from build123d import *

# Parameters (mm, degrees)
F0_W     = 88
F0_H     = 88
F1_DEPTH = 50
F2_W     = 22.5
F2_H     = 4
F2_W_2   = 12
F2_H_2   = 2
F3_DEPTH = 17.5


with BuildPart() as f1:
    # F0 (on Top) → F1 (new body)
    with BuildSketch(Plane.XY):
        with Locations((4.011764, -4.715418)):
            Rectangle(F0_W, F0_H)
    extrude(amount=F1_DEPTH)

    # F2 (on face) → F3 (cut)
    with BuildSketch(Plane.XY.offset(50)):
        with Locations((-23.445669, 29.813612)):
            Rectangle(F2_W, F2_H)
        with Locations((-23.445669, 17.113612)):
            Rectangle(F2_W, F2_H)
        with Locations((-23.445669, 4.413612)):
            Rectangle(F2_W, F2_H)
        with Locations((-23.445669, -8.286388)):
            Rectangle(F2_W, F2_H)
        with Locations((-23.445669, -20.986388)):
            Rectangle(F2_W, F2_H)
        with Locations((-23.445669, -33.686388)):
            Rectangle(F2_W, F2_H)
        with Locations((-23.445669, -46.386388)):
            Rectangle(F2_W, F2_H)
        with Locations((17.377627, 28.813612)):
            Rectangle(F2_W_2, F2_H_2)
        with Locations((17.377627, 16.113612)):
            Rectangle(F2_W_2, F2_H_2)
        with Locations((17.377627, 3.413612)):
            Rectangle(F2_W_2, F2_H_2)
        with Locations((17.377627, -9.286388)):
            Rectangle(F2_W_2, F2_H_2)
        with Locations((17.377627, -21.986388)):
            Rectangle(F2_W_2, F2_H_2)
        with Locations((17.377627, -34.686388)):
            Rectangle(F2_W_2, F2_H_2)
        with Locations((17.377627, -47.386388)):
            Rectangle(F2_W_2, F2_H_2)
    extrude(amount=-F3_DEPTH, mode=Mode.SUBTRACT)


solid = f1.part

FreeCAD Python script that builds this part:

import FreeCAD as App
import Part
import Sketcher

V = App.Vector
Q = App.Units.Quantity

doc = App.newDocument("Part")
body = doc.addObject("PartDesign::Body", "Body")

# Sketch on XY plane
sketch1 = body.newObject("Sketcher::SketchObject", "Sketch")
sketch1.AttachmentSupport = (doc.getObject("XY_Plane"), [""])
sketch1.MapMode = "FlatFace"
sketch1.addGeometry(Part.LineSegment(V(-40, 39, 0), V(-40, -49, 0)), False)
sketch1.addGeometry(Part.LineSegment(V(-40, -49, 0), V(48, -49, 0)), False)
sketch1.addGeometry(Part.LineSegment(V(48, -49, 0), V(48, 39, 0)), False)
sketch1.addGeometry(Part.LineSegment(V(48, 39, 0), V(-40, 39, 0)), False)
sketch1.addConstraint(Sketcher.Constraint("Coincident", 0, 2, 1, 1))
sketch1.addConstraint(Sketcher.Constraint("Coincident", 1, 2, 2, 1))
sketch1.addConstraint(Sketcher.Constraint("Coincident", 2, 2, 3, 1))
sketch1.addConstraint(Sketcher.Constraint("Coincident", 3, 2, 0, 1))
sketch1.addConstraint(Sketcher.Constraint("Vertical", 0))
sketch1.addConstraint(Sketcher.Constraint("Horizontal", 1))
sketch1.addConstraint(Sketcher.Constraint("Vertical", 2))
sketch1.addConstraint(Sketcher.Constraint("Horizontal", 3))
sketch1.addConstraint(Sketcher.Constraint("Equal", 3, 0))
sketch1.addConstraint(Sketcher.Constraint("DistanceX", 1, 1, 1, 2, Q("88 mm")))
sketch1.addConstraint(Sketcher.Constraint("DistanceX", 0, 2, -1, 1, Q("39.988236 mm")))
sketch1.addConstraint(Sketcher.Constraint("DistanceY", 0, 2, -1, 1, Q("48.715418 mm")))
pad1 = body.newObject("PartDesign::Pad", "Pad")
pad1.Profile = sketch1
pad1.Length = 50

# Sketch on XY plane
sketch2 = body.newObject("Sketcher::SketchObject", "Sketch001")
sketch2.AttachmentSupport = (doc.getObject("XY_Plane"), [""])
sketch2.MapMode = "FlatFace"
sketch2.AttachmentOffset = App.Placement(V(0, 0, 50), App.Rotation())
sketch2.addGeometry(Part.LineSegment(V(-34.7, 31.8, 0), V(-34.7, 27.8, 0)), False)
sketch2.addGeometry(Part.LineSegment(V(-34.7, 27.8, 0), V(-12.2, 27.8, 0)), False)
sketch2.addGeometry(Part.LineSegment(V(-12.2, 27.8, 0), V(-12.2, 31.8, 0)), False)
sketch2.addGeometry(Part.LineSegment(V(-12.2, 31.8, 0), V(-34.7, 31.8, 0)), False)
sketch2.addGeometry(Part.LineSegment(V(-34.7, 19.1, 0), V(-34.7, 15.1, 0)), False)
sketch2.addGeometry(Part.LineSegment(V(-34.7, 15.1, 0), V(-12.2, 15.1, 0)), False)
sketch2.addGeometry(Part.LineSegment(V(-12.2, 15.1, 0), V(-12.2, 19.1, 0)), False)
sketch2.addGeometry(Part.LineSegment(V(-12.2, 19.1, 0), V(-34.7, 19.1, 0)), False)
sketch2.addGeometry(Part.LineSegment(V(-34.7, 6.4, 0), V(-34.7, 2.4, 0)), False)
sketch2.addGeometry(Part.LineSegment(V(-34.7, 2.4, 0), V(-12.2, 2.4, 0)), False)
sketch2.addGeometry(Part.LineSegment(V(-12.2, 2.4, 0), V(-12.2, 6.4, 0)), False)
sketch2.addGeometry(Part.LineSegment(V(-12.2, 6.4, 0), V(-34.7, 6.4, 0)), False)
sketch2.addGeometry(Part.LineSegment(V(-34.7, -6.3, 0), V(-34.7, -10.3, 0)), False)
sketch2.addGeometry(Part.LineSegment(V(-34.7, -10.3, 0), V(-12.2, -10.3, 0)), False)
sketch2.addGeometry(Part.LineSegment(V(-12.2, -10.3, 0), V(-12.2, -6.3, 0)), False)
sketch2.addGeometry(Part.LineSegment(V(-12.2, -6.3, 0), V(-34.7, -6.3, 0)), False)
sketch2.addGeometry(Part.LineSegment(V(-34.7, -19, 0), V(-34.7, -23, 0)), False)
sketch2.addGeometry(Part.LineSegment(V(-34.7, -23, 0), V(-12.2, -23, 0)), False)
sketch2.addGeometry(Part.LineSegment(V(-12.2, -23, 0), V(-12.2, -19, 0)), False)
sketch2.addGeometry(Part.LineSegment(V(-12.2, -19, 0), V(-34.7, -19, 0)), False)
sketch2.addGeometry(Part.LineSegment(V(-34.7, -31.7, 0), V(-34.7, -35.7, 0)), False)
sketch2.addGeometry(Part.LineSegment(V(-34.7, -35.7, 0), V(-12.2, -35.7, 0)), False)
sketch2.addGeometry(Part.LineSegment(V(-12.2, -35.7, 0), V(-12.2, -31.7, 0)), False)
sketch2.addGeometry(Part.LineSegment(V(-12.2, -31.7, 0), V(-34.7, -31.7, 0)), False)
sketch2.addGeometry(Part.LineSegment(V(-34.7, -44.4, 0), V(-34.7, -48.4, 0)), False)
sketch2.addGeometry(Part.LineSegment(V(-34.7, -48.4, 0), V(-12.2, -48.4, 0)), False)
sketch2.addGeometry(Part.LineSegment(V(-12.2, -48.4, 0), V(-12.2, -44.4, 0)), False)
sketch2.addGeometry(Part.LineSegment(V(-12.2, -44.4, 0), V(-34.7, -44.4, 0)), False)
sketch2.addGeometry(Part.LineSegment(V(11.4, 29.8, 0), V(11.4, 27.8, 0)), False)
sketch2.addGeometry(Part.LineSegment(V(11.4, 27.8, 0), V(23.4, 27.8, 0)), False)
sketch2.addGeometry(Part.LineSegment(V(23.4, 27.8, 0), V(23.4, 29.8, 0)), False)
sketch2.addGeometry(Part.LineSegment(V(23.4, 29.8, 0), V(11.4, 29.8, 0)), False)
sketch2.addGeometry(Part.LineSegment(V(11.4, 17.1, 0), V(11.4, 15.1, 0)), False)
sketch2.addGeometry(Part.LineSegment(V(11.4, 15.1, 0), V(23.4, 15.1, 0)), False)
sketch2.addGeometry(Part.LineSegment(V(23.4, 15.1, 0), V(23.4, 17.1, 0)), False)
sketch2.addGeometry(Part.LineSegment(V(23.4, 17.1, 0), V(11.4, 17.1, 0)), False)
sketch2.addGeometry(Part.LineSegment(V(11.4, 4.4, 0), V(11.4, 2.4, 0)), False)
sketch2.addGeometry(Part.LineSegment(V(11.4, 2.4, 0), V(23.4, 2.4, 0)), False)
sketch2.addGeometry(Part.LineSegment(V(23.4, 2.4, 0), V(23.4, 4.4, 0)), False)
sketch2.addGeometry(Part.LineSegment(V(23.4, 4.4, 0), V(11.4, 4.4, 0)), False)
sketch2.addGeometry(Part.LineSegment(V(11.4, -8.3, 0), V(11.4, -10.3, 0)), False)
sketch2.addGeometry(Part.LineSegment(V(11.4, -10.3, 0), V(23.4, -10.3, 0)), False)
sketch2.addGeometry(Part.LineSegment(V(23.4, -10.3, 0), V(23.4, -8.3, 0)), False)
sketch2.addGeometry(Part.LineSegment(V(23.4, -8.3, 0), V(11.4, -8.3, 0)), False)
sketch2.addGeometry(Part.LineSegment(V(11.4, -21, 0), V(11.4, -23, 0)), False)
sketch2.addGeometry(Part.LineSegment(V(11.4, -23, 0), V(23.4, -23, 0)), False)
sketch2.addGeometry(Part.LineSegment(V(23.4, -23, 0), V(23.4, -21, 0)), False)
sketch2.addGeometry(Part.LineSegment(V(23.4, -21, 0), V(11.4, -21, 0)), False)
sketch2.addGeometry(Part.LineSegment(V(11.4, -33.7, 0), V(11.4, -35.7, 0)), False)
sketch2.addGeometry(Part.LineSegment(V(11.4, -35.7, 0), V(23.4, -35.7, 0)), False)
sketch2.addGeometry(Part.LineSegment(V(23.4, -35.7, 0), V(23.4, -33.7, 0)), False)
sketch2.addGeometry(Part.LineSegment(V(23.4, -33.7, 0), V(11.4, -33.7, 0)), False)
sketch2.addGeometry(Part.LineSegment(V(11.4, -46.4, 0), V(11.4, -48.4, 0)), False)
sketch2.addGeometry(Part.LineSegment(V(11.4, -48.4, 0), V(23.4, -48.4, 0)), False)
sketch2.addGeometry(Part.LineSegment(V(23.4, -48.4, 0), V(23.4, -46.4, 0)), False)
sketch2.addGeometry(Part.LineSegment(V(23.4, -46.4, 0), V(11.4, -46.4, 0)), False)
sketch2.addConstraint(Sketcher.Constraint("Coincident", 0, 2, 1, 1))
sketch2.addConstraint(Sketcher.Constraint("Coincident", 1, 2, 2, 1))
sketch2.addConstraint(Sketcher.Constraint("Coincident", 2, 2, 3, 1))
sketch2.addConstraint(Sketcher.Constraint("Coincident", 3, 2, 0, 1))
sketch2.addConstraint(Sketcher.Constraint("Coincident", 4, 2, 5, 1))
sketch2.addConstraint(Sketcher.Constraint("Coincident", 5, 2, 6, 1))
sketch2.addConstraint(Sketcher.Constraint("Coincident", 6, 2, 7, 1))
sketch2.addConstraint(Sketcher.Constraint("Coincident", 7, 2, 4, 1))
sketch2.addConstraint(Sketcher.Constraint("Coincident", 8, 2, 9, 1))
sketch2.addConstraint(Sketcher.Constraint("Coincident", 9, 2, 10, 1))
sketch2.addConstraint(Sketcher.Constraint("Coincident", 10, 2, 11, 1))
sketch2.addConstraint(Sketcher.Constraint("Coincident", 11, 2, 8, 1))
sketch2.addConstraint(Sketcher.Constraint("Coincident", 12, 2, 13, 1))
sketch2.addConstraint(Sketcher.Constraint("Coincident", 13, 2, 14, 1))
sketch2.addConstraint(Sketcher.Constraint("Coincident", 14, 2, 15, 1))
sketch2.addConstraint(Sketcher.Constraint("Coincident", 15, 2, 12, 1))
sketch2.addConstraint(Sketcher.Constraint("Coincident", 16, 2, 17, 1))
sketch2.addConstraint(Sketcher.Constraint("Coincident", 17, 2, 18, 1))
sketch2.addConstraint(Sketcher.Constraint("Coincident", 18, 2, 19, 1))
sketch2.addConstraint(Sketcher.Constraint("Coincident", 19, 2, 16, 1))
sketch2.addConstraint(Sketcher.Constraint("Coincident", 20, 2, 21, 1))
sketch2.addConstraint(Sketcher.Constraint("Coincident", 21, 2, 22, 1))
sketch2.addConstraint(Sketcher.Constraint("Coincident", 22, 2, 23, 1))
sketch2.addConstraint(Sketcher.Constraint("Coincident", 23, 2, 20, 1))
sketch2.addConstraint(Sketcher.Constraint("Coincident", 24, 2, 25, 1))
sketch2.addConstraint(Sketcher.Constraint("Coincident", 25, 2, 26, 1))
sketch2.addConstraint(Sketcher.Constraint("Coincident", 26, 2, 27, 1))
sketch2.addConstraint(Sketcher.Constraint("Coincident", 27, 2, 24, 1))
sketch2.addConstraint(Sketcher.Constraint("Coincident", 28, 2, 29, 1))
sketch2.addConstraint(Sketcher.Constraint("Coincident", 29, 2, 30, 1))
sketch2.addConstraint(Sketcher.Constraint("Coincident", 30, 2, 31, 1))
sketch2.addConstraint(Sketcher.Constraint("Coincident", 31, 2, 28, 1))
sketch2.addConstraint(Sketcher.Constraint("Coincident", 32, 2, 33, 1))
sketch2.addConstraint(Sketcher.Constraint("Coincident", 33, 2, 34, 1))
sketch2.addConstraint(Sketcher.Constraint("Coincident", 34, 2, 35, 1))
sketch2.addConstraint(Sketcher.Constraint("Coincident", 35, 2, 32, 1))
sketch2.addConstraint(Sketcher.Constraint("Coincident", 36, 2, 37, 1))
sketch2.addConstraint(Sketcher.Constraint("Coincident", 37, 2, 38, 1))
sketch2.addConstraint(Sketcher.Constraint("Coincident", 38, 2, 39, 1))
sketch2.addConstraint(Sketcher.Constraint("Coincident", 39, 2, 36, 1))
sketch2.addConstraint(Sketcher.Constraint("Coincident", 40, 2, 41, 1))
sketch2.addConstraint(Sketcher.Constraint("Coincident", 41, 2, 42, 1))
sketch2.addConstraint(Sketcher.Constraint("Coincident", 42, 2, 43, 1))
sketch2.addConstraint(Sketcher.Constraint("Coincident", 43, 2, 40, 1))
sketch2.addConstraint(Sketcher.Constraint("Coincident", 44, 2, 45, 1))
sketch2.addConstraint(Sketcher.Constraint("Coincident", 45, 2, 46, 1))
sketch2.addConstraint(Sketcher.Constraint("Coincident", 46, 2, 47, 1))
sketch2.addConstraint(Sketcher.Constraint("Coincident", 47, 2, 44, 1))
sketch2.addConstraint(Sketcher.Constraint("Coincident", 48, 2, 49, 1))
sketch2.addConstraint(Sketcher.Constraint("Coincident", 49, 2, 50, 1))
sketch2.addConstraint(Sketcher.Constraint("Coincident", 50, 2, 51, 1))
sketch2.addConstraint(Sketcher.Constraint("Coincident", 51, 2, 48, 1))
sketch2.addConstraint(Sketcher.Constraint("Coincident", 52, 2, 53, 1))
sketch2.addConstraint(Sketcher.Constraint("Coincident", 53, 2, 54, 1))
sketch2.addConstraint(Sketcher.Constraint("Coincident", 54, 2, 55, 1))
sketch2.addConstraint(Sketcher.Constraint("Coincident", 55, 2, 52, 1))
sketch2.addConstraint(Sketcher.Constraint("Vertical", 0))
sketch2.addConstraint(Sketcher.Constraint("Horizontal", 1))
sketch2.addConstraint(Sketcher.Constraint("Vertical", 2))
sketch2.addConstraint(Sketcher.Constraint("Horizontal", 3))
sketch2.addConstraint(Sketcher.Constraint("Vertical", 4))
sketch2.addConstraint(Sketcher.Constraint("Horizontal", 5))
sketch2.addConstraint(Sketcher.Constraint("Vertical", 6))
sketch2.addConstraint(Sketcher.Constraint("Horizontal", 7))
sketch2.addConstraint(Sketcher.Constraint("Vertical", 8))
sketch2.addConstraint(Sketcher.Constraint("Horizontal", 9))
sketch2.addConstraint(Sketcher.Constraint("Vertical", 10))
sketch2.addConstraint(Sketcher.Constraint("Horizontal", 11))
sketch2.addConstraint(Sketcher.Constraint("Vertical", 12))
sketch2.addConstraint(Sketcher.Constraint("Horizontal", 13))
sketch2.addConstraint(Sketcher.Constraint("Vertical", 14))
sketch2.addConstraint(Sketcher.Constraint("Horizontal", 15))
sketch2.addConstraint(Sketcher.Constraint("Vertical", 16))
sketch2.addConstraint(Sketcher.Constraint("Horizontal", 17))
sketch2.addConstraint(Sketcher.Constraint("Vertical", 18))
sketch2.addConstraint(Sketcher.Constraint("Horizontal", 19))
sketch2.addConstraint(Sketcher.Constraint("Vertical", 20))
sketch2.addConstraint(Sketcher.Constraint("Horizontal", 21))
sketch2.addConstraint(Sketcher.Constraint("Vertical", 22))
sketch2.addConstraint(Sketcher.Constraint("Horizontal", 23))
sketch2.addConstraint(Sketcher.Constraint("Vertical", 24))
sketch2.addConstraint(Sketcher.Constraint("Horizontal", 25))
sketch2.addConstraint(Sketcher.Constraint("Vertical", 26))
sketch2.addConstraint(Sketcher.Constraint("Horizontal", 27))
sketch2.addConstraint(Sketcher.Constraint("Vertical", 28))
sketch2.addConstraint(Sketcher.Constraint("Horizontal", 29))
sketch2.addConstraint(Sketcher.Constraint("Vertical", 30))
sketch2.addConstraint(Sketcher.Constraint("Horizontal", 31))
sketch2.addConstraint(Sketcher.Constraint("Vertical", 32))
sketch2.addConstraint(Sketcher.Constraint("Horizontal", 33))
sketch2.addConstraint(Sketcher.Constraint("Vertical", 34))
sketch2.addConstraint(Sketcher.Constraint("Horizontal", 35))
sketch2.addConstraint(Sketcher.Constraint("Vertical", 36))
sketch2.addConstraint(Sketcher.Constraint("Horizontal", 37))
sketch2.addConstraint(Sketcher.Constraint("Vertical", 38))
sketch2.addConstraint(Sketcher.Constraint("Horizontal", 39))
sketch2.addConstraint(Sketcher.Constraint("Vertical", 40))
sketch2.addConstraint(Sketcher.Constraint("Horizontal", 41))
sketch2.addConstraint(Sketcher.Constraint("Vertical", 42))
sketch2.addConstraint(Sketcher.Constraint("Horizontal", 43))
sketch2.addConstraint(Sketcher.Constraint("Vertical", 44))
sketch2.addConstraint(Sketcher.Constraint("Horizontal", 45))
sketch2.addConstraint(Sketcher.Constraint("Vertical", 46))
sketch2.addConstraint(Sketcher.Constraint("Horizontal", 47))
sketch2.addConstraint(Sketcher.Constraint("Vertical", 48))
sketch2.addConstraint(Sketcher.Constraint("Horizontal", 49))
sketch2.addConstraint(Sketcher.Constraint("Vertical", 50))
sketch2.addConstraint(Sketcher.Constraint("Horizontal", 51))
sketch2.addConstraint(Sketcher.Constraint("Vertical", 52))
sketch2.addConstraint(Sketcher.Constraint("Horizontal", 53))
sketch2.addConstraint(Sketcher.Constraint("Vertical", 54))
sketch2.addConstraint(Sketcher.Constraint("Horizontal", 55))
sketch2.addConstraint(Sketcher.Constraint("Horizontal", 1, 2, 28, 2))
sketch2.addConstraint(Sketcher.Constraint("Horizontal", 5, 2, 32, 2))
sketch2.addConstraint(Sketcher.Constraint("Horizontal", 9, 2, 36, 2))
sketch2.addConstraint(Sketcher.Constraint("Horizontal", 13, 2, 40, 2))
sketch2.addConstraint(Sketcher.Constraint("Horizontal", 17, 2, 44, 2))
sketch2.addConstraint(Sketcher.Constraint("Horizontal", 21, 2, 48, 2))
sketch2.addConstraint(Sketcher.Constraint("Horizontal", 25, 2, 52, 2))
sketch2.addConstraint(Sketcher.Constraint("Vertical", 3, 2, 4, 2))
sketch2.addConstraint(Sketcher.Constraint("Vertical", 2, 2, 5, 2))
sketch2.addConstraint(Sketcher.Constraint("Vertical", 7, 2, 8, 2))
sketch2.addConstraint(Sketcher.Constraint("Vertical", 6, 2, 9, 2))
sketch2.addConstraint(Sketcher.Constraint("Vertical", 11, 2, 12, 2))
sketch2.addConstraint(Sketcher.Constraint("Vertical", 10, 2, 13, 2))
sketch2.addConstraint(Sketcher.Constraint("Vertical", 15, 2, 16, 2))
sketch2.addConstraint(Sketcher.Constraint("Vertical", 14, 2, 17, 2))
sketch2.addConstraint(Sketcher.Constraint("Vertical", 19, 2, 20, 2))
sketch2.addConstraint(Sketcher.Constraint("Vertical", 18, 2, 21, 2))
sketch2.addConstraint(Sketcher.Constraint("Vertical", 23, 2, 24, 2))
sketch2.addConstraint(Sketcher.Constraint("Vertical", 22, 2, 25, 2))
sketch2.addConstraint(Sketcher.Constraint("Vertical", 31, 2, 32, 2))
sketch2.addConstraint(Sketcher.Constraint("Vertical", 30, 2, 33, 2))
sketch2.addConstraint(Sketcher.Constraint("Vertical", 35, 2, 36, 2))
sketch2.addConstraint(Sketcher.Constraint("Vertical", 34, 2, 37, 2))
sketch2.addConstraint(Sketcher.Constraint("Vertical", 39, 2, 40, 2))
sketch2.addConstraint(Sketcher.Constraint("Vertical", 38, 2, 41, 2))
sketch2.addConstraint(Sketcher.Constraint("Vertical", 43, 2, 44, 2))
sketch2.addConstraint(Sketcher.Constraint("Vertical", 42, 2, 45, 2))
sketch2.addConstraint(Sketcher.Constraint("Vertical", 47, 2, 48, 2))
sketch2.addConstraint(Sketcher.Constraint("Vertical", 46, 2, 49, 2))
sketch2.addConstraint(Sketcher.Constraint("Vertical", 51, 2, 52, 2))
sketch2.addConstraint(Sketcher.Constraint("Vertical", 50, 2, 53, 2))
sketch2.addConstraint(Sketcher.Constraint("Equal", 2, 4))
sketch2.addConstraint(Sketcher.Constraint("Equal", 6, 8))
sketch2.addConstraint(Sketcher.Constraint("Equal", 10, 12))
sketch2.addConstraint(Sketcher.Constraint("Equal", 14, 16))
sketch2.addConstraint(Sketcher.Constraint("Equal", 18, 20))
sketch2.addConstraint(Sketcher.Constraint("Equal", 22, 24))
sketch2.addConstraint(Sketcher.Constraint("Equal", 30, 32))
sketch2.addConstraint(Sketcher.Constraint("Equal", 34, 36))
sketch2.addConstraint(Sketcher.Constraint("Equal", 38, 40))
sketch2.addConstraint(Sketcher.Constraint("Equal", 42, 44))
sketch2.addConstraint(Sketcher.Constraint("Equal", 46, 48))
sketch2.addConstraint(Sketcher.Constraint("Equal", 50, 52))
sketch2.addConstraint(Sketcher.Constraint("DistanceX", 29, 1, 29, 2, Q("12 mm")))
sketch2.addConstraint(Sketcher.Constraint("DistanceY", 0, 2, 0, 1, Q("4 mm")))
sketch2.addConstraint(Sketcher.Constraint("DistanceY", 28, 2, 28, 1, Q("2 mm")))
sketch2.addConstraint(Sketcher.Constraint("DistanceX", 1, 1, 1, 2, Q("22.5 mm")))
sketch2.addConstraint(Sketcher.Constraint("DistanceY", 4, 2, 0, 2, Q("12.7 mm")))
sketch2.addConstraint(Sketcher.Constraint("DistanceY", 8, 2, 4, 2, Q("12.7 mm")))
sketch2.addConstraint(Sketcher.Constraint("DistanceY", 12, 2, 8, 2, Q("12.7 mm")))
sketch2.addConstraint(Sketcher.Constraint("DistanceY", 16, 2, 12, 2, Q("12.7 mm")))
sketch2.addConstraint(Sketcher.Constraint("DistanceY", 20, 2, 16, 2, Q("12.7 mm")))
sketch2.addConstraint(Sketcher.Constraint("DistanceY", 24, 2, 20, 2, Q("12.7 mm")))
sketch2.addConstraint(Sketcher.Constraint("DistanceX", 0, 2, -1, 1, Q("34.695669 mm")))
sketch2.addConstraint(Sketcher.Constraint("DistanceY", -1, 1, 0, 2, Q("27.813612 mm")))
sketch2.addConstraint(Sketcher.Constraint("DistanceX", -1, 1, 28, 2, Q("11.377627 mm")))
pocket1 = body.newObject("PartDesign::Pocket", "Pocket")
pocket1.Profile = sketch2
pocket1.Length = 17.5

doc.recompute()
